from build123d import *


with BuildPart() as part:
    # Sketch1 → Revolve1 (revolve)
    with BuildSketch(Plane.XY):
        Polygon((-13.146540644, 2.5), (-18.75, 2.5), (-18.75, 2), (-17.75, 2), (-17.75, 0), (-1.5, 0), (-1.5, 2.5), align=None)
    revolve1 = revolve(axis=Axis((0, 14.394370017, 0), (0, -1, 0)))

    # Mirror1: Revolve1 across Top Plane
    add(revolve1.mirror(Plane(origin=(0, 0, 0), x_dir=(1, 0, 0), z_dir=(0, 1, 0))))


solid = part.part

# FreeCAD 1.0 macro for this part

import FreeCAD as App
import Part
import Sketcher
Q = App.Units.Quantity

doc = App.newDocument("Part")
params = doc.addObject("Spreadsheet::Sheet", "Params")
for row, (alias, value) in enumerate([
    ("sketch1_width", "1 mm"),
    ("sketch1_height", "2 mm"),
    ("sketch1_height2", "0.5 mm"),
    ("sketch1_width2", "16.25 mm"),
    ("revolution_angle", "360 deg"),
], start=1):
    params.set(f"A{row}", alias)
    params.set(f"B{row}", "=" + value)
    params.setAlias(f"B{row}", alias)

body = doc.addObject("PartDesign::Body", "Body")

sketch1 = body.newObject("Sketcher::SketchObject", "Sketch")
sketch1.AttachmentSupport = (doc.getObject("XY_Plane"), [""])
sketch1.MapMode = "FlatFace"
sketch1.addGeometry([
    Part.LineSegment(App.Vector(-18.8, 2.5, 0), App.Vector(-18.8, 2, 0)),
    Part.LineSegment(App.Vector(-18.8, 2, 0), App.Vector(-17.8, 2, 0)),
    Part.LineSegment(App.Vector(-17.8, 2, 0), App.Vector(-17.8, 0, 0)),
    Part.LineSegment(App.Vector(-17.8, 0, 0), App.Vector(-1.5, 0, 0)),
    Part.LineSegment(App.Vector(-1.5, 0, 0), App.Vector(-1.5, 2.5, 0)),
    Part.LineSegment(App.Vector(-1.5, 2.5, 0), App.Vector(-18.8, 2.5, 0)),
], False)
sketch1.addConstraint([
    Sketcher.Constraint("Coincident", 0, 2, 1, 1),
    Sketcher.Constraint("Coincident", 1, 2, 2, 1),
    Sketcher.Constraint("Coincident", 2, 2, 3, 1),
    Sketcher.Constraint("Coincident", 3, 2, 4, 1),
    Sketcher.Constraint("Coincident", 4, 2, 5, 1),
    Sketcher.Constraint("Coincident", 5, 2, 0, 1),
    Sketcher.Constraint("Vertical", 0),
    Sketcher.Constraint("Horizontal", 1),
    Sketcher.Constraint("Vertical", 2),
    Sketcher.Constraint("Horizontal", 3),
    Sketcher.Constraint("Vertical", 4),
    Sketcher.Constraint("Horizontal", 5),
    Sketcher.Constraint("PointOnObject", 2, 2, -1),
    Sketcher.Constraint("DistanceX", 1, 1, 1, 2, Q("1 mm")),
    Sketcher.Constraint("DistanceY", 2, 2, 2, 1, Q("2 mm")),
    Sketcher.Constraint("DistanceY", 0, 2, 0, 1, Q("0.5 mm")),
    Sketcher.Constraint("DistanceX", 3, 1, 3, 2, Q("16.25 mm")),
    Sketcher.Constraint("DistanceX", 3, 2, -1, 1, Q("1.5 mm")),
])
sketch1.setExpression("Constraints[13]", "Params.sketch1_width")
sketch1.setExpression("Constraints[14]", "Params.sketch1_height")
sketch1.setExpression("Constraints[15]", "Params.sketch1_height2")
sketch1.setExpression("Constraints[16]", "Params.sketch1_width2")
revolution = body.newObject("PartDesign::Revolution", "Revolution")
revolution.Profile = sketch1
revolution.ReferenceAxis = (sketch1, ["V_Axis"])
revolution.setExpression("Angle", "Params.revolution_angle")
doc.recompute()

mirrored = body.newObject("PartDesign::Mirrored", "Mirrored")
mirrored.Originals = [revolution]
mirrored.MirrorPlane = (doc.getObject("XZ_Plane"), [""])
body.Tip = mirrored

doc.recompute()
